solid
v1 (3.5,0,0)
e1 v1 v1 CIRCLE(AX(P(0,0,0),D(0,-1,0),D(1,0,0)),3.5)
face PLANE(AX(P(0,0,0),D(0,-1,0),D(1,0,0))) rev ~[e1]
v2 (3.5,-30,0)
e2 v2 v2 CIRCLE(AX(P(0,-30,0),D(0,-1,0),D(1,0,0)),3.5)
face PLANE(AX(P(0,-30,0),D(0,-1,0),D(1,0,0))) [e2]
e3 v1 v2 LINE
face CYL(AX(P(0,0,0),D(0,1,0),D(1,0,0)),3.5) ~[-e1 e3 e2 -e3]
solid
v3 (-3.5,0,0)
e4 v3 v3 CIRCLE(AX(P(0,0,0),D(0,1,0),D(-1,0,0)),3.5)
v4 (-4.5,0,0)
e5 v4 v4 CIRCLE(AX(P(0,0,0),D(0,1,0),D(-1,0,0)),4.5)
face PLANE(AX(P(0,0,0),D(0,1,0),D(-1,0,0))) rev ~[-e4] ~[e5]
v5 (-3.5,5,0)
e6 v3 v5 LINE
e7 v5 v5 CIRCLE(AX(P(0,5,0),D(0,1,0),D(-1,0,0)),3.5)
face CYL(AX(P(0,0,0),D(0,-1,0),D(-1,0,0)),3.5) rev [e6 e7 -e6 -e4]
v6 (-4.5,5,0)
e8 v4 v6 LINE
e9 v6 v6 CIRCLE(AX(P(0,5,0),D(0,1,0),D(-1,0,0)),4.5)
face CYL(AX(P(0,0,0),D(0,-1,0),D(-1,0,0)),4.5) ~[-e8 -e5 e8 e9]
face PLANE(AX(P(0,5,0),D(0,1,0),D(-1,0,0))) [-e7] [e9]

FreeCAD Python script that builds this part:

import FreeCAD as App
import Part
import Sketcher
Q = App.Units.Quantity

doc = App.newDocument("Part")
body = doc.addObject("PartDesign::Body", "Body")

# Sketch on XZ plane
sketch1 = body.newObject("Sketcher::SketchObject", "Sketch")
sketch1.AttachmentSupport = (doc.getObject("XZ_Plane"), [""])
sketch1.MapMode = "FlatFace"
sketch1.addGeometry(Part.Circle(App.Vector(0, 0, 0), App.Vector(0, 0, 1), 3.5), False)
sketch1.addConstraint([
    Sketcher.Constraint("Coincident", 0, 3, -1, 1),
    Sketcher.Constraint("Diameter", 0, Q("7 mm")),
])
pad1 = body.newObject("PartDesign::Pad", "Pad")
pad1.Profile = sketch1
pad1.Length = 30
body2 = doc.addObject("PartDesign::Body", "Body001")

# Sketch on XZ plane
sketch2 = body2.newObject("Sketcher::SketchObject", "Sketch001")
sketch2.AttachmentSupport = (doc.getObject("XZ_Plane001"), [""])
sketch2.MapMode = "FlatFace"
sketch2.addGeometry([
    Part.Circle(App.Vector(0, 0, 0), App.Vector(0, 0, 1), 4.5),
    Part.Circle(App.Vector(0, 0, 0), App.Vector(0, 0, 1), 3.5),
], False)
sketch2.addConstraint([
    Sketcher.Constraint("Coincident", 0, 3, -1, 1),
    Sketcher.Constraint("Coincident", 1, 3, -1, 1),
    Sketcher.Constraint("Diameter", 0, Q("9 mm")),
    Sketcher.Constraint("Diameter", 1, Q("7 mm")),
])
pad2 = body2.newObject("PartDesign::Pad", "Pad001")
pad2.Profile = sketch2
pad2.Length = 5
pad2.Reversed = True

doc.recompute()
